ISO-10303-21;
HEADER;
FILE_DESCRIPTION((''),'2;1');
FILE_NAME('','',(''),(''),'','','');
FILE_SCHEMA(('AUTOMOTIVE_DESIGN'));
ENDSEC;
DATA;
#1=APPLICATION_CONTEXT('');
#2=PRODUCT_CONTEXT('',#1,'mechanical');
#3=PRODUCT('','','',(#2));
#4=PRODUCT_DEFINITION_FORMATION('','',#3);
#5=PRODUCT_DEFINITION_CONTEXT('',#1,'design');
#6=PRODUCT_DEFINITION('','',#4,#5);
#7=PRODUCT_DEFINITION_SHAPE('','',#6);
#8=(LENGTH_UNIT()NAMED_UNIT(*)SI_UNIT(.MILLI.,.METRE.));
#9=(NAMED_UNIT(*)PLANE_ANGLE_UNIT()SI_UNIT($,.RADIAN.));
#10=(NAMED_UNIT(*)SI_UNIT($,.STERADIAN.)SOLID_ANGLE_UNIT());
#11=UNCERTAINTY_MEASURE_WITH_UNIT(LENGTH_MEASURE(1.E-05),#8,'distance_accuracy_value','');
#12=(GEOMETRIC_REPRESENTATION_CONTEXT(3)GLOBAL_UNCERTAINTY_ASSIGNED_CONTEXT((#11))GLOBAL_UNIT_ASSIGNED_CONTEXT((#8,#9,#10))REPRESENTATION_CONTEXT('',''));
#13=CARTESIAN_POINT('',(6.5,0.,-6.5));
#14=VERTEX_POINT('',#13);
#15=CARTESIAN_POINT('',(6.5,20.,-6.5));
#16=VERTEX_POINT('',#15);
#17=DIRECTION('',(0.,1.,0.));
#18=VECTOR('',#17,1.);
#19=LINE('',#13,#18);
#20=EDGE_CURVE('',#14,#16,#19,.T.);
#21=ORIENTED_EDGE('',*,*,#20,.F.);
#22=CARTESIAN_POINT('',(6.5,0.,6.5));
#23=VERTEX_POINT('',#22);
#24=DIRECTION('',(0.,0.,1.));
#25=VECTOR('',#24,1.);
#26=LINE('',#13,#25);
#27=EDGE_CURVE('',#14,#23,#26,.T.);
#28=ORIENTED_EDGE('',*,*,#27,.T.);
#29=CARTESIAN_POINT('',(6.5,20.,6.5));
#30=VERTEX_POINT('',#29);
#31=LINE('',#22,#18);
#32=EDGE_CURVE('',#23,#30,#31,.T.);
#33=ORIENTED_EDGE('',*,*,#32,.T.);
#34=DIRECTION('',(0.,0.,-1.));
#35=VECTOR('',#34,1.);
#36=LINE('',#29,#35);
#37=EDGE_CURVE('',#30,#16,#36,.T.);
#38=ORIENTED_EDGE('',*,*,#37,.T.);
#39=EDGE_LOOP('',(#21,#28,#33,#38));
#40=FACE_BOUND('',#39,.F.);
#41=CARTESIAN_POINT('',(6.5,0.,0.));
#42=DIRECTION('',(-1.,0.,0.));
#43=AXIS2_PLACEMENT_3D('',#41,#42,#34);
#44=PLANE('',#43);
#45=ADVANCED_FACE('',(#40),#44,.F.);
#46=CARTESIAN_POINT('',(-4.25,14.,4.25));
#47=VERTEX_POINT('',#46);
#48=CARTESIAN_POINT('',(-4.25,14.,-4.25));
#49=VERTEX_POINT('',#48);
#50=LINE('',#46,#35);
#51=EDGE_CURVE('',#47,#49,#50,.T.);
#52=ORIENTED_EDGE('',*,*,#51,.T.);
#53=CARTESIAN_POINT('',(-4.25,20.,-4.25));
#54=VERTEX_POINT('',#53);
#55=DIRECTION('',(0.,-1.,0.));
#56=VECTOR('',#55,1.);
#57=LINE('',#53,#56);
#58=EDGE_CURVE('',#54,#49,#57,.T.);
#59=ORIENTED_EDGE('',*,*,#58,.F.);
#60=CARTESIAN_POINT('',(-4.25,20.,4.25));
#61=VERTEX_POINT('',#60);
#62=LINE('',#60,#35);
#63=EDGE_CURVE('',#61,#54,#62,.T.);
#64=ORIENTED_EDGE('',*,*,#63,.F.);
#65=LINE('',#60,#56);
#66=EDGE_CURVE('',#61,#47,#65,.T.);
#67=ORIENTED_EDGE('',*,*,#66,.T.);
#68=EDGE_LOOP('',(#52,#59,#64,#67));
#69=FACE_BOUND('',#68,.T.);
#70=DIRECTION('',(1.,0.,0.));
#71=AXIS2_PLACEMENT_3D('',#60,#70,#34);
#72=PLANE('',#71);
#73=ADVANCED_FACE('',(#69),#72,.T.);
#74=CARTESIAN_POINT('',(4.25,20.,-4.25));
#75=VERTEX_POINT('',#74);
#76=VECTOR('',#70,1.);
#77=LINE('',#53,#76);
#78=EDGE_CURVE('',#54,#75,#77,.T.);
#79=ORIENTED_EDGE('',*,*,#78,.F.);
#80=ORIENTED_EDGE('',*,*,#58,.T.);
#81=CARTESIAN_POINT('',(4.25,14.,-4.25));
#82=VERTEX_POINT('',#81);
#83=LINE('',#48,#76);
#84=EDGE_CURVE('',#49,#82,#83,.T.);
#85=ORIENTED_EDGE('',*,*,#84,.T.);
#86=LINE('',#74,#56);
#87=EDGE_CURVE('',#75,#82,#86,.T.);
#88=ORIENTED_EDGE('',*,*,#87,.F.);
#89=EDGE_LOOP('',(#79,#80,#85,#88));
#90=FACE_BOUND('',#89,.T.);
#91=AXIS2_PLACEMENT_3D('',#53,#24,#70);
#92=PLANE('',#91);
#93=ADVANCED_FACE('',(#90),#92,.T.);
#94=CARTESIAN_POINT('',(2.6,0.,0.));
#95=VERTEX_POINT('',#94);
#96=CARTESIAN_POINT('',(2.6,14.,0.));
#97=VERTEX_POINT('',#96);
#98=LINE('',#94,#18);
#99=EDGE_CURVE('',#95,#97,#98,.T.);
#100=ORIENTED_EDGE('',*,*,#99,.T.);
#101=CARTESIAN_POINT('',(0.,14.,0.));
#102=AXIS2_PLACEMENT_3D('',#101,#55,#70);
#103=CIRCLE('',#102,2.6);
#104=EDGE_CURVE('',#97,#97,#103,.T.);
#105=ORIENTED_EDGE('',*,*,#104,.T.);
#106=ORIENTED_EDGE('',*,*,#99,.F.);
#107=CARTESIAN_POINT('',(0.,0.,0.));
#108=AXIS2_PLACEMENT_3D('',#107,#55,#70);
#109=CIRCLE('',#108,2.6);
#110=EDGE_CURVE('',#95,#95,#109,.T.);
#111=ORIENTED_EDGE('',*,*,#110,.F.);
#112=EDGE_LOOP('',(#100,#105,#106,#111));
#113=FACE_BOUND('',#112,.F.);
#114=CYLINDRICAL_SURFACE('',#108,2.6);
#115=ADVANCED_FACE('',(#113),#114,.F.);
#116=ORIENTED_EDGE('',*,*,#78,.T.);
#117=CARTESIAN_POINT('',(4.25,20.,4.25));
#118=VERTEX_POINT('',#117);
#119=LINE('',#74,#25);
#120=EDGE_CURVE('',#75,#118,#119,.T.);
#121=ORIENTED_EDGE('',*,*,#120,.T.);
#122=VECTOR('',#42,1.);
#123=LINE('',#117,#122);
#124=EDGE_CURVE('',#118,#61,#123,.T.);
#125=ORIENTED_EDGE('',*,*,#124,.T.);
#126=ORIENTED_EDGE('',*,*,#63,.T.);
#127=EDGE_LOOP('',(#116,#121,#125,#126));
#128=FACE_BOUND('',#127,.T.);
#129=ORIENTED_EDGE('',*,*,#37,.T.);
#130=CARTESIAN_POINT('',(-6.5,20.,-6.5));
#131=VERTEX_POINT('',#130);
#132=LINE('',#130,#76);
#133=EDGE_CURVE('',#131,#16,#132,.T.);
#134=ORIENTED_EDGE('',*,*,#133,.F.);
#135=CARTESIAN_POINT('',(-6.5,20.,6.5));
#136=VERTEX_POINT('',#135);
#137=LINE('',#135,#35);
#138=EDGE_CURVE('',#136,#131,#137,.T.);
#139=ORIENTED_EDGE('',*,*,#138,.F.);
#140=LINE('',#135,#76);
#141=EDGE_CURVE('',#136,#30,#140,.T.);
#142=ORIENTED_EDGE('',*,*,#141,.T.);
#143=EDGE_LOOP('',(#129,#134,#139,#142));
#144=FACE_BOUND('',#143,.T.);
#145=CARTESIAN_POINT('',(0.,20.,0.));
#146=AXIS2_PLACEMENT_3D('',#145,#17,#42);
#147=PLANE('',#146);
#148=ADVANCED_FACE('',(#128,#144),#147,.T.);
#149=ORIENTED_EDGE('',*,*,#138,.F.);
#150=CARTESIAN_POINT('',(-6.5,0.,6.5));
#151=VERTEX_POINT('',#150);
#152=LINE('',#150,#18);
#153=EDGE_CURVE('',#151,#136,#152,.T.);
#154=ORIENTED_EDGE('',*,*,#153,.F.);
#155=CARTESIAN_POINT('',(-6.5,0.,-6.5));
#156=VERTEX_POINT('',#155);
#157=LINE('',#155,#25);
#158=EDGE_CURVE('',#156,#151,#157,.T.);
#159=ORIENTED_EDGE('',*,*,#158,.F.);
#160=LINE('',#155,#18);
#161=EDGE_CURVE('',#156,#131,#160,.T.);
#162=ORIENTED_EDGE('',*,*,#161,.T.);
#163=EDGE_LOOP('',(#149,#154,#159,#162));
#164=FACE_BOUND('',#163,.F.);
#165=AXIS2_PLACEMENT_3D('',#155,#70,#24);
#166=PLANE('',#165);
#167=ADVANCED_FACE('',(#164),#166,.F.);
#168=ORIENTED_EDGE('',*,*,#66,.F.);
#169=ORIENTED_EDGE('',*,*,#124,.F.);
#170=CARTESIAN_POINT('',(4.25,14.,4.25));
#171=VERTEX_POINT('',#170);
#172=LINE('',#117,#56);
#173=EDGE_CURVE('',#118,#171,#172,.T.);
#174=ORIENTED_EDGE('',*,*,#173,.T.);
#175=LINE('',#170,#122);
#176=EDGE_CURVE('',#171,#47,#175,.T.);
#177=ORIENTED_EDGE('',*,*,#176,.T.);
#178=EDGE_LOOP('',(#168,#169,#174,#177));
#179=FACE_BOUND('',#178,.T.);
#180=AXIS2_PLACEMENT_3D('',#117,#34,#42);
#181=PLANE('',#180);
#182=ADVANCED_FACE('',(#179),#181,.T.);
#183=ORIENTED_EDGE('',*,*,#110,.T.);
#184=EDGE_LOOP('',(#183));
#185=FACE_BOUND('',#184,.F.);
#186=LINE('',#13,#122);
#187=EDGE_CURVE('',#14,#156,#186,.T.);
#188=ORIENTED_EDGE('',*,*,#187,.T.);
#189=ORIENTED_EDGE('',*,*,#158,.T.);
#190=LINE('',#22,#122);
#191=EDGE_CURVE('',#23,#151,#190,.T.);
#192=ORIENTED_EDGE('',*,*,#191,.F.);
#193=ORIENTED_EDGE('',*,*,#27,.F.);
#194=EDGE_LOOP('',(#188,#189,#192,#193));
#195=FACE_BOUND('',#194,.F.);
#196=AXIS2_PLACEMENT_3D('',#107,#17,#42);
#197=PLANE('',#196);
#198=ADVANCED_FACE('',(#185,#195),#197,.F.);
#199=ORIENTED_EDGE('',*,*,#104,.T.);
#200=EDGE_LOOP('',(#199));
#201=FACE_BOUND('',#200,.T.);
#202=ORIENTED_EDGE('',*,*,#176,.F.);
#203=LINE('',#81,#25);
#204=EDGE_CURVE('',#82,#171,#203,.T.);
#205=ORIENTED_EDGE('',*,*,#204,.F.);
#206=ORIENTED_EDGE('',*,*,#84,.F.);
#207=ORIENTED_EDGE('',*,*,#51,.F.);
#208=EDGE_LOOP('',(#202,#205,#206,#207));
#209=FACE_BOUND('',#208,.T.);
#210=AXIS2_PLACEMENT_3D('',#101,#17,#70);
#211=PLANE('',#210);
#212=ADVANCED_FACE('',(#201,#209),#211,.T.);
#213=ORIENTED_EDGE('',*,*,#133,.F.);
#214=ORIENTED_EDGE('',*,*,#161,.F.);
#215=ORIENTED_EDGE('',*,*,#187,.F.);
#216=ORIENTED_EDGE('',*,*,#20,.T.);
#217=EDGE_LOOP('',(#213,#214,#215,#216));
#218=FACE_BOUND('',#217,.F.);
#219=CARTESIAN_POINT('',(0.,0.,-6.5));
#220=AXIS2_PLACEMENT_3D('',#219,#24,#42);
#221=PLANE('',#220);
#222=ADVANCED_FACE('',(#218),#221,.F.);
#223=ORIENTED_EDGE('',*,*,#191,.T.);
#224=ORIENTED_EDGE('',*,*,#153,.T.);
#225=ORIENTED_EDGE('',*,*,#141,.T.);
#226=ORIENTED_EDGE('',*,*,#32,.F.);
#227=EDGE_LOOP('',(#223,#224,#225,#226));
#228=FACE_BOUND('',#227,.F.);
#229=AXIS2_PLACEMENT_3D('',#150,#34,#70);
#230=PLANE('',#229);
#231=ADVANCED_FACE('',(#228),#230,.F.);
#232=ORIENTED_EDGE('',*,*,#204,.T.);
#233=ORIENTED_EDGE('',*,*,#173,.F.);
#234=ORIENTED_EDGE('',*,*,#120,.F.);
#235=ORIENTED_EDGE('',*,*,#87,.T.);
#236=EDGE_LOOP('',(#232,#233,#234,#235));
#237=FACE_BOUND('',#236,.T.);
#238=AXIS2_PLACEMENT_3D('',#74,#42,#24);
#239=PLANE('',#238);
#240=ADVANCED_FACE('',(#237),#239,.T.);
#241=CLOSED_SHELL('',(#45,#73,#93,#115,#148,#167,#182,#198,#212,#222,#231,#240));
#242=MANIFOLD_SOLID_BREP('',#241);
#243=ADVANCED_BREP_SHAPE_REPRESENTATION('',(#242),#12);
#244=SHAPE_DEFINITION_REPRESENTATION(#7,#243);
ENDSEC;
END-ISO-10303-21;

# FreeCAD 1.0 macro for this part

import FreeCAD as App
import Part
import Sketcher
from FreeCAD import Vector

doc = App.newDocument("Part")
body = doc.addObject("PartDesign::Body", "Body")

sketch1 = body.newObject("Sketcher::SketchObject", "Sketch")
sketch1.AttachmentSupport = (doc.getObject("XZ_Plane"), [""])
sketch1.MapMode = "FlatFace"
sketch1.addGeometry(Part.LineSegment(Vector(-6, -6, 0), Vector(-6, 6, 0)), False)
sketch1.addGeometry(Part.LineSegment(Vector(-6, 6, 0), Vector(6, 6, 0)), False)
sketch1.addGeometry(Part.LineSegment(Vector(6, 6, 0), Vector(6, -6, 0)), False)
sketch1.addGeometry(Part.LineSegment(Vector(6, -6, 0), Vector(-6, -6, 0)), False)
sketch1.addConstraint(Sketcher.Constraint("Coincident", 0, 2, 1, 1))
sketch1.addConstraint(Sketcher.Constraint("Coincident", 1, 2, 2, 1))
sketch1.addConstraint(Sketcher.Constraint("Coincident", 2, 2, 3, 1))
sketch1.addConstraint(Sketcher.Constraint("Coincident", 3, 2, 0, 1))
sketch1.addConstraint(Sketcher.Constraint("Vertical", 0))
sketch1.addConstraint(Sketcher.Constraint("Horizontal", 1))
sketch1.addConstraint(Sketcher.Constraint("Vertical", 2))
sketch1.addConstraint(Sketcher.Constraint("Horizontal", 3))
sketch1.addConstraint(Sketcher.Constraint("Symmetric", 0, 2, 2, 2, -1, 1))
sketch1.addConstraint(Sketcher.Constraint("Equal", 3, 0))
sketch1.addConstraint(Sketcher.Constraint("DistanceX", 1, 1, 1, 2, 13.0))
pad1 = body.newObject("PartDesign::Pad", "Pad")
pad1.Profile = sketch1
pad1.Length = 20
pad1.Reversed = True

sketch2 = body.newObject("Sketcher::SketchObject", "Sketch001")
sketch2.AttachmentSupport = (doc.getObject("XZ_Plane"), [""])
sketch2.MapMode = "FlatFace"
sketch2.addGeometry(Part.Circle(Vector(0, 0, 0), Vector(0, 0, 1), 2.6), False)
sketch2.addConstraint(Sketcher.Constraint("Coincident", 0, 3, -1, 1))
sketch2.addConstraint(Sketcher.Constraint("Diameter", 0, 5.2))
pocket1 = body.newObject("PartDesign::Pocket", "Pocket")
pocket1.Profile = sketch2
pocket1.Type = "ThroughAll"

sketch3 = body.newObject("Sketcher::SketchObject", "Sketch002")
sketch3.AttachmentSupport = (doc.getObject("XZ_Plane"), [""])
sketch3.MapMode = "FlatFace"
sketch3.AttachmentOffset = App.Placement(Vector(0, 0, -20), App.Rotation())
sketch3.addGeometry(Part.LineSegment(Vector(-4, 4, 0), Vector(4, 4, 0)), False)
sketch3.addGeometry(Part.LineSegment(Vector(4, 4, 0), Vector(4, -4, 0)), False)
sketch3.addGeometry(Part.LineSegment(Vector(4, -4, 0), Vector(-4, -4, 0)), False)
sketch3.addGeometry(Part.LineSegment(Vector(-4, -4, 0), Vector(-4, 4, 0)), False)
sketch3.addConstraint(Sketcher.Constraint("Coincident", 0, 2, 1, 1))
sketch3.addConstraint(Sketcher.Constraint("Coincident", 1, 2, 2, 1))
sketch3.addConstraint(Sketcher.Constraint("Coincident", 2, 2, 3, 1))
sketch3.addConstraint(Sketcher.Constraint("Coincident", 3, 2, 0, 1))
sketch3.addConstraint(Sketcher.Constraint("Horizontal", 0))
sketch3.addConstraint(Sketcher.Constraint("Vertical", 1))
sketch3.addConstraint(Sketcher.Constraint("Horizontal", 2))
sketch3.addConstraint(Sketcher.Constraint("Vertical", 3))
sketch3.addConstraint(Sketcher.Constraint("Symmetric", 0, 2, 2, 2, -1, 1))
sketch3.addConstraint(Sketcher.Constraint("Equal", 2, 1))
sketch3.addConstraint(Sketcher.Constraint("DistanceX", 0, 1, 0, 2, 8.5))
pocket2 = body.newObject("PartDesign::Pocket", "Pocket001")
pocket2.Profile = sketch3
pocket2.Length = 6
pocket2.Reversed = True

doc.recompute()
